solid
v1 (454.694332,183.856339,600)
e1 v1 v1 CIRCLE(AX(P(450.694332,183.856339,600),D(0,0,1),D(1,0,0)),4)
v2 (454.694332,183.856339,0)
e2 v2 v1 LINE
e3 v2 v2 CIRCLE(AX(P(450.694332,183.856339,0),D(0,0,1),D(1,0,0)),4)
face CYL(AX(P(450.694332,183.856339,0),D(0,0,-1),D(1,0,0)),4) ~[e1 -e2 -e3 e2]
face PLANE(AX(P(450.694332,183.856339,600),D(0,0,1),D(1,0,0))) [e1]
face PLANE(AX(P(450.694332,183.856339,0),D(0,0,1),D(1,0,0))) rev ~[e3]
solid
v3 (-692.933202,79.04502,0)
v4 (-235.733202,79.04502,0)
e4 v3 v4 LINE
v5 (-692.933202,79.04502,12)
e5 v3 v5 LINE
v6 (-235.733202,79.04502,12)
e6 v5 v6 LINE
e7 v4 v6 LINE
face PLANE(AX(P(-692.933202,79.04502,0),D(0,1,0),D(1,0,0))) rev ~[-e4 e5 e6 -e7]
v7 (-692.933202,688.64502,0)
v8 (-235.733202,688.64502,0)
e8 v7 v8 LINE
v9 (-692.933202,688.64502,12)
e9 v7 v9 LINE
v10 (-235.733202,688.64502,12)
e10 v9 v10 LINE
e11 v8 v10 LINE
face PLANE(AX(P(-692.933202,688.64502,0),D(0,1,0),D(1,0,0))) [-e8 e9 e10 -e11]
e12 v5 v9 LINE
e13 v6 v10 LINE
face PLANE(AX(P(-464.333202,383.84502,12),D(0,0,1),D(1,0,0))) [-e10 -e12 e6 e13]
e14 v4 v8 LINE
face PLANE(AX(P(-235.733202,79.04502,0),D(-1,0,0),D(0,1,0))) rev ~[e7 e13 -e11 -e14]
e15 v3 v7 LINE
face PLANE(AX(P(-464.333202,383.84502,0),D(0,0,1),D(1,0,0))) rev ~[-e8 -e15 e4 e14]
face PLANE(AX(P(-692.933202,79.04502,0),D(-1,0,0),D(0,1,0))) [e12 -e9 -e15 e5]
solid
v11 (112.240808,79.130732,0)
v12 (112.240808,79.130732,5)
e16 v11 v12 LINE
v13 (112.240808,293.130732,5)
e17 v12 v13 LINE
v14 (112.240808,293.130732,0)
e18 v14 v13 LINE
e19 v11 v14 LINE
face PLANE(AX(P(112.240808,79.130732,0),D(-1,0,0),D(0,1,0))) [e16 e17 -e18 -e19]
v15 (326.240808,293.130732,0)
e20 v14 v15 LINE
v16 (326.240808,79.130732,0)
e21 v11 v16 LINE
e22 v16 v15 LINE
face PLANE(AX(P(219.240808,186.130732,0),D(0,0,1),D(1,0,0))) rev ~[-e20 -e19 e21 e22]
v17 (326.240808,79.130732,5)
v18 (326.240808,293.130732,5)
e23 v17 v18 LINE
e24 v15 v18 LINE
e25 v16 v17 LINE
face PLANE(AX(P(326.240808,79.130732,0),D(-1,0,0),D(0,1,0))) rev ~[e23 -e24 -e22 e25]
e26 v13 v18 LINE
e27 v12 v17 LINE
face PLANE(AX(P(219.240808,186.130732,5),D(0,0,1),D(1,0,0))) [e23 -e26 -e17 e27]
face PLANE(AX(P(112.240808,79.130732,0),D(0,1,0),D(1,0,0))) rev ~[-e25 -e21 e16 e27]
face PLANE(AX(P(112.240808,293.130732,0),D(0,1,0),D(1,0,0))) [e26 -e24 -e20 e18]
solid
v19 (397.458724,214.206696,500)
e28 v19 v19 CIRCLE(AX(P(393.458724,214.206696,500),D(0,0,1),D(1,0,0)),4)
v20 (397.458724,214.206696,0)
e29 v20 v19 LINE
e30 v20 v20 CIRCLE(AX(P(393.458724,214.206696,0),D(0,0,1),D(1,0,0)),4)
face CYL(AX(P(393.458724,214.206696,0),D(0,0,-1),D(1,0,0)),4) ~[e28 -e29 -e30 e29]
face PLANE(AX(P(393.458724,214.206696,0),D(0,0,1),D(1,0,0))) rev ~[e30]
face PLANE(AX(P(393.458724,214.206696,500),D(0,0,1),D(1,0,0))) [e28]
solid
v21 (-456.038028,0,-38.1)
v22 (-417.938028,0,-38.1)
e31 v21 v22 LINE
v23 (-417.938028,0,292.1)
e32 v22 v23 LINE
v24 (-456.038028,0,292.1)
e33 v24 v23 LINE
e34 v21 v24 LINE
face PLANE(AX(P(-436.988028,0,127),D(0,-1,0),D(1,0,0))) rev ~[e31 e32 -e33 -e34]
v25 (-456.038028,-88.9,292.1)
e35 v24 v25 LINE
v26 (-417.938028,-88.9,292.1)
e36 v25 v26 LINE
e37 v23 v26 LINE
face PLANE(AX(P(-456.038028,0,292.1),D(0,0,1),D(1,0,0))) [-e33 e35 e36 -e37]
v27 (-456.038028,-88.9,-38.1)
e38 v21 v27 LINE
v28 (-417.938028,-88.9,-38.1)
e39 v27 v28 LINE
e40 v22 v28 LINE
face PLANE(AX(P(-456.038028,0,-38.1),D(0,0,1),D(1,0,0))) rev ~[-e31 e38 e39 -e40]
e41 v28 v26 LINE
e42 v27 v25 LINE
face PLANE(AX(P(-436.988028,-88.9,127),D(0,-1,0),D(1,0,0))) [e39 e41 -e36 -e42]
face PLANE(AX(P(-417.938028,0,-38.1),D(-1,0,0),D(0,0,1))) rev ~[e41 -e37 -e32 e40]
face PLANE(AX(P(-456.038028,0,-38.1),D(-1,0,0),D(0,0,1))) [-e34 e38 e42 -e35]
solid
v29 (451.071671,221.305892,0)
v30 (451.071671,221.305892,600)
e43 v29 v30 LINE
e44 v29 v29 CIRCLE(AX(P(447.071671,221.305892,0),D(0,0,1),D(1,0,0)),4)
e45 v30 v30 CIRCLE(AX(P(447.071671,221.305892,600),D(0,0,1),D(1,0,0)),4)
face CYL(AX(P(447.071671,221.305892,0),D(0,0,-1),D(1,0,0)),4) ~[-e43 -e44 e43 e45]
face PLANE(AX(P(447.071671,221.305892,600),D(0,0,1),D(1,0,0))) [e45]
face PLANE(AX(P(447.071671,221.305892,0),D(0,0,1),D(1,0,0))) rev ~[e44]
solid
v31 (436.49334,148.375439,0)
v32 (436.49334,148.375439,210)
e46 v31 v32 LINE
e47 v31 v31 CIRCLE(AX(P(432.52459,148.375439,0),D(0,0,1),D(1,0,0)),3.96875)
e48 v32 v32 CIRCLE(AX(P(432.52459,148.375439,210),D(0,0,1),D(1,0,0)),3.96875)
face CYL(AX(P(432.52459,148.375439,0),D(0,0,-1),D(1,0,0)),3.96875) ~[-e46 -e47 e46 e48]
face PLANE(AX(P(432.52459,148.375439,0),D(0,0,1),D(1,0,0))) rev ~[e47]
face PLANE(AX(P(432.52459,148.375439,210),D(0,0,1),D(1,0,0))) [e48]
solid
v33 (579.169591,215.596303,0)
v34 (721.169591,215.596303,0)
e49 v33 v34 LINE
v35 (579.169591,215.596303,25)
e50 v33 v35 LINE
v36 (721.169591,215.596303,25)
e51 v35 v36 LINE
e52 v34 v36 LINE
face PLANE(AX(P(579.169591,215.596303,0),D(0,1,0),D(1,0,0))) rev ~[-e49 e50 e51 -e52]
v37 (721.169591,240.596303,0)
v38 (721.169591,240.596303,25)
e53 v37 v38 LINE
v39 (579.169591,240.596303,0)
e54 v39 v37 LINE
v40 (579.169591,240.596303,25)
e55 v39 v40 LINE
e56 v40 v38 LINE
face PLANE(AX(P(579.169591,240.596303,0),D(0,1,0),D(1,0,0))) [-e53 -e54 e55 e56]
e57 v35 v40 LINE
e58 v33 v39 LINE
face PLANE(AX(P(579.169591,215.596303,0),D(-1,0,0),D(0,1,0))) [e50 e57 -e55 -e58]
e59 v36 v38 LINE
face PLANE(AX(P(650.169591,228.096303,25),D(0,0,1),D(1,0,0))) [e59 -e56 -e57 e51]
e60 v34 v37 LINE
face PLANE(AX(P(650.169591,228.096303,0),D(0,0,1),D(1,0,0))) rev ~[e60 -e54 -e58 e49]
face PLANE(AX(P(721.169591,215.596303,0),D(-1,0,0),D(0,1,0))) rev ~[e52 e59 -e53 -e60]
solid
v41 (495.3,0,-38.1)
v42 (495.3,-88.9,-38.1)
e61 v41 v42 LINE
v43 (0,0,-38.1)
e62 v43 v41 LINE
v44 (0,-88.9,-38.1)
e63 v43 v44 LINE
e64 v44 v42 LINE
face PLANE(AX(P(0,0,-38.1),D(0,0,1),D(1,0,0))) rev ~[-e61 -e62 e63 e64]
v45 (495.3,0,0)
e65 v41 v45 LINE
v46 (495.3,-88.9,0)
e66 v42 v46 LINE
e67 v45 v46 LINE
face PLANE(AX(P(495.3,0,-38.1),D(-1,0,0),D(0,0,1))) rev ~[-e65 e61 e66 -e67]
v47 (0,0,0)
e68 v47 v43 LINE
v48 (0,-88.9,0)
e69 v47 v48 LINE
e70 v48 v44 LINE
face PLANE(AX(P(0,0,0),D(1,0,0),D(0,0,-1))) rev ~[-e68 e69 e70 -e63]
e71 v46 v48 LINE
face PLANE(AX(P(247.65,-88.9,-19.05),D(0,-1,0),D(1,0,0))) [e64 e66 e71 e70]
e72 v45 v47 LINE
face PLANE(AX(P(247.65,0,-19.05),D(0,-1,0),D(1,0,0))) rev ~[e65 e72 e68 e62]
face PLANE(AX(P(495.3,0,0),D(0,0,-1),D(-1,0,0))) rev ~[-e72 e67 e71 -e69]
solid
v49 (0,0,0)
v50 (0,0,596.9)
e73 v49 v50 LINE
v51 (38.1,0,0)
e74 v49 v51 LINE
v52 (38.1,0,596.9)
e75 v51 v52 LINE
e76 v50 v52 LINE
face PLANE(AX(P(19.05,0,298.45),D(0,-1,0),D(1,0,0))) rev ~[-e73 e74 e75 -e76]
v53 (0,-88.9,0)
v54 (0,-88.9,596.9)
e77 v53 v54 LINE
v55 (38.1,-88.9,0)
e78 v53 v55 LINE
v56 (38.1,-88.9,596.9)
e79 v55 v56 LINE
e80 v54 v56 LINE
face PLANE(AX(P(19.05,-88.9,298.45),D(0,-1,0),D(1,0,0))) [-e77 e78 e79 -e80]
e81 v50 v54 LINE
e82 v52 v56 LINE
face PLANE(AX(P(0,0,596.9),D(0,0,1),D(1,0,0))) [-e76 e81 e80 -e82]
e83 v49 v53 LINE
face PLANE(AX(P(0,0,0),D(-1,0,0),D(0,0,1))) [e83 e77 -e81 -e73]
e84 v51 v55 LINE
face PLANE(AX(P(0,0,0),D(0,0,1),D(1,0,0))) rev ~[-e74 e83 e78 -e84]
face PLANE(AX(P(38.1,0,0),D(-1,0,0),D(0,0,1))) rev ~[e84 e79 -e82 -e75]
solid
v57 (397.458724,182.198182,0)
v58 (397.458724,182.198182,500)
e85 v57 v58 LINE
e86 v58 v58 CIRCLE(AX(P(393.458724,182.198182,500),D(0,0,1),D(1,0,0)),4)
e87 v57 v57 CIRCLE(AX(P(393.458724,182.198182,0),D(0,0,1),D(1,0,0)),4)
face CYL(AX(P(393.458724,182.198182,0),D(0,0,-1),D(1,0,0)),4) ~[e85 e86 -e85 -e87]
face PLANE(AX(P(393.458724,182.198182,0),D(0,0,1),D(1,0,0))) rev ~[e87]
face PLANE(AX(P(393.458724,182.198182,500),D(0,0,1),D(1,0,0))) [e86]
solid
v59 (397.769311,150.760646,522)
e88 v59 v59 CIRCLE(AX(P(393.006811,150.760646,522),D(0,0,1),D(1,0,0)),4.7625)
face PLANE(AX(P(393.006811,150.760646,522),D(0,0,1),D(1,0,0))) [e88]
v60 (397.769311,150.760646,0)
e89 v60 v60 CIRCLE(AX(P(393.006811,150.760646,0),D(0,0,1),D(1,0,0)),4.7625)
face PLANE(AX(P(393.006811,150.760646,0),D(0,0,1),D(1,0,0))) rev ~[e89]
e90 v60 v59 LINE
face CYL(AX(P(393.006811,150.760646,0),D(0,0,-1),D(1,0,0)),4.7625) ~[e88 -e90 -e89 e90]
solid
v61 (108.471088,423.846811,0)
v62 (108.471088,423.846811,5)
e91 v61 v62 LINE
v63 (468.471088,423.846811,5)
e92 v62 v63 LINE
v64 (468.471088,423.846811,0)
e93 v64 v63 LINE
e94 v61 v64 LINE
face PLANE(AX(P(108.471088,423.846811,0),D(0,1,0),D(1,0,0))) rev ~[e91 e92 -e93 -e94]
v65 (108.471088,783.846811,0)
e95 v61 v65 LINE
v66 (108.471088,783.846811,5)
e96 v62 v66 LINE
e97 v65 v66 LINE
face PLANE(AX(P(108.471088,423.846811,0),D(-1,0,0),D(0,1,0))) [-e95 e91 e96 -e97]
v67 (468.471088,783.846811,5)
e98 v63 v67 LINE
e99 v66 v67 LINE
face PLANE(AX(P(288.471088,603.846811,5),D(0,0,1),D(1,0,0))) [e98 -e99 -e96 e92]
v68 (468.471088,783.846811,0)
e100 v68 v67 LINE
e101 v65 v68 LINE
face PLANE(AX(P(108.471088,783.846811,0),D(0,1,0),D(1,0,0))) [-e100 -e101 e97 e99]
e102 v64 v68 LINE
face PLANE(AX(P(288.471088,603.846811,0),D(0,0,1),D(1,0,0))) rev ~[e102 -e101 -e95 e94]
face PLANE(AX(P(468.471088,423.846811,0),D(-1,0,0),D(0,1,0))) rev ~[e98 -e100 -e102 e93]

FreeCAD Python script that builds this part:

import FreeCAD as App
import Part
import Sketcher
Q = App.Units.Quantity

doc = App.newDocument("Part")
body = doc.addObject("PartDesign::Body", "Body")

sketch1 = body.newObject("Sketcher::SketchObject", "Sketch")
sketch1.AttachmentSupport = (doc.getObject("XZ_Plane"), [""])
sketch1.MapMode = "FlatFace"
sketch1.addGeometry(Part.LineSegment(App.Vector(0, 597, 0), App.Vector(0, 0, 0)), False)
sketch1.addGeometry(Part.LineSegment(App.Vector(0, 0, 0), App.Vector(38, 0, 0)), False)
sketch1.addGeometry(Part.LineSegment(App.Vector(38, 0, 0), App.Vector(38, 597, 0)), False)
sketch1.addGeometry(Part.LineSegment(App.Vector(38, 597, 0), App.Vector(0, 597, 0)), False)
sketch1.addConstraint(Sketcher.Constraint("Coincident", 0, 2, 1, 1))
sketch1.addConstraint(Sketcher.Constraint("Coincident", 1, 2, 2, 1))
sketch1.addConstraint(Sketcher.Constraint("Coincident", 2, 2, 3, 1))
sketch1.addConstraint(Sketcher.Constraint("Coincident", 3, 2, 0, 1))
sketch1.addConstraint(Sketcher.Constraint("Vertical", 0))
sketch1.addConstraint(Sketcher.Constraint("Horizontal", 1))
sketch1.addConstraint(Sketcher.Constraint("Vertical", 2))
sketch1.addConstraint(Sketcher.Constraint("Horizontal", 3))
sketch1.addConstraint(Sketcher.Constraint("Coincident", 0, 2, -1, 1))
sketch1.addConstraint(Sketcher.Constraint("DistanceX", 1, 1, 1, 2, Q("38.1 mm")))
sketch1.addConstraint(Sketcher.Constraint("DistanceY", 0, 2, 0, 1, Q("596.9 mm")))
pad1 = body.newObject("PartDesign::Pad", "Pad")
pad1.Profile = sketch1
pad1.Length = 88.9
body2 = doc.addObject("PartDesign::Body", "Body001")

sketch2 = body2.newObject("Sketcher::SketchObject", "Sketch001")
sketch2.AttachmentSupport = (doc.getObject("XZ_Plane001"), [""])
sketch2.MapMode = "FlatFace"
sketch2.addGeometry(Part.LineSegment(App.Vector(0, 0, 0), App.Vector(0, -38, 0)), False)
sketch2.addGeometry(Part.LineSegment(App.Vector(0, -38, 0), App.Vector(495, -38, 0)), False)
sketch2.addGeometry(Part.LineSegment(App.Vector(495, -38, 0), App.Vector(495, 0, 0)), False)
sketch2.addGeometry(Part.LineSegment(App.Vector(495, 0, 0), App.Vector(0, 0, 0)), False)
sketch2.addConstraint(Sketcher.Constraint("Coincident", 0, 2, 1, 1))
sketch2.addConstraint(Sketcher.Constraint("Coincident", 1, 2, 2, 1))
sketch2.addConstraint(Sketcher.Constraint("Coincident", 2, 2, 3, 1))
sketch2.addConstraint(Sketcher.Constraint("Coincident", 3, 2, 0, 1))
sketch2.addConstraint(Sketcher.Constraint("Vertical", 0))
sketch2.addConstraint(Sketcher.Constraint("Horizontal", 1))
sketch2.addConstraint(Sketcher.Constraint("Vertical", 2))
sketch2.addConstraint(Sketcher.Constraint("Horizontal", 3))
sketch2.addConstraint(Sketcher.Constraint("Coincident", 3, 2, -1, 1))
sketch2.addConstraint(Sketcher.Constraint("DistanceX", 1, 1, 1, 2, Q("495.3 mm")))
sketch2.addConstraint(Sketcher.Constraint("DistanceY", 0, 2, 0, 1, Q("38.1 mm")))
pad2 = body2.newObject("PartDesign::Pad", "Pad001")
pad2.Profile = sketch2
pad2.Length = 88.9
body3 = doc.addObject("PartDesign::Body", "Body002")

sketch3 = body3.newObject("Sketcher::SketchObject", "Sketch002")
sketch3.AttachmentSupport = (doc.getObject("XY_Plane002"), [""])
sketch3.MapMode = "FlatFace"
sketch3.addGeometry(Part.LineSegment(App.Vector(112, 293, 0), App.Vector(112, 79, 0)), False)
sketch3.addGeometry(Part.LineSegment(App.Vector(112, 79, 0), App.Vector(326, 79, 0)), False)
sketch3.addGeometry(Part.LineSegment(App.Vector(326, 79, 0), App.Vector(326, 293, 0)), False)
sketch3.addGeometry(Part.LineSegment(App.Vector(326, 293, 0), App.Vector(112, 293, 0)), False)
sketch3.addConstraint(Sketcher.Constraint("Coincident", 0, 2, 1, 1))
sketch3.addConstraint(Sketcher.Constraint("Coincident", 1, 2, 2, 1))
sketch3.addConstraint(Sketcher.Constraint("Coincident", 2, 2, 3, 1))
sketch3.addConstraint(Sketcher.Constraint("Coincident", 3, 2, 0, 1))
sketch3.addConstraint(Sketcher.Constraint("Vertical", 0))
sketch3.addConstraint(Sketcher.Constraint("Horizontal", 1))
sketch3.addConstraint(Sketcher.Constraint("Vertical", 2))
sketch3.addConstraint(Sketcher.Constraint("Horizontal", 3))
sketch3.addConstraint(Sketcher.Constraint("Equal", 3, 0))
sketch3.addConstraint(Sketcher.Constraint("DistanceX", 1, 1, 1, 2, Q("214 mm")))
sketch3.addConstraint(Sketcher.Constraint("DistanceX", -1, 1, 0, 2, Q("112.240808 mm")))
sketch3.addConstraint(Sketcher.Constraint("DistanceY", -1, 1, 0, 2, Q("79.130732 mm")))
pad3 = body3.newObject("PartDesign::Pad", "Pad002")
pad3.Profile = sketch3
pad3.Length = 5
body4 = doc.addObject("PartDesign::Body", "Body003")

sketch4 = body4.newObject("Sketcher::SketchObject", "Sketch003")
sketch4.AttachmentSupport = (doc.getObject("XY_Plane003"), [""])
sketch4.MapMode = "FlatFace"
sketch4.addGeometry(Part.Circle(App.Vector(393.5, 214.2, 0), App.Vector(0, 0, 1), 4), False)
sketch4.addConstraint(Sketcher.Constraint("Diameter", 0, Q("8 mm")))
sketch4.addConstraint(Sketcher.Constraint("DistanceX", -1, 1, 0, 3, Q("393.458724 mm")))
sketch4.addConstraint(Sketcher.Constraint("DistanceY", -1, 1, 0, 3, Q("214.206696 mm")))
pad4 = body4.newObject("PartDesign::Pad", "Pad003")
pad4.Profile = sketch4
pad4.Length = 500
body5 = doc.addObject("PartDesign::Body", "Body004")

sketch5 = body5.newObject("Sketcher::SketchObject", "Sketch004")
sketch5.AttachmentSupport = (doc.getObject("XY_Plane004"), [""])
sketch5.MapMode = "FlatFace"
sketch5.addGeometry(Part.Circle(App.Vector(393.5, 182.2, 0), App.Vector(0, 0, 1), 4), False)
sketch5.addConstraint(Sketcher.Constraint("Diameter", 0, Q("8 mm")))
sketch5.addConstraint(Sketcher.Constraint("DistanceY", -1, 1, 0, 3, Q("182.198182 mm")))
sketch5.addConstraint(Sketcher.Constraint("DistanceX", -1, 1, 0, 3, Q("393.458724 mm")))
pad5 = body5.newObject("PartDesign::Pad", "Pad004")
pad5.Profile = sketch5
pad5.Length = 500
body6 = doc.addObject("PartDesign::Body", "Body005")

sketch6 = body6.newObject("Sketcher::SketchObject", "Sketch005")
sketch6.AttachmentSupport = (doc.getObject("XY_Plane005"), [""])
sketch6.MapMode = "FlatFace"
sketch6.addGeometry(Part.LineSegment(App.Vector(108, 784, 0), App.Vector(108, 424, 0)), False)
sketch6.addGeometry(Part.LineSegment(App.Vector(108, 424, 0), App.Vector(468, 424, 0)), False)
sketch6.addGeometry(Part.LineSegment(App.Vector(468, 424, 0), App.Vector(468, 784, 0)), False)
sketch6.addGeometry(Part.LineSegment(App.Vector(468, 784, 0), App.Vector(108, 784, 0)), False)
sketch6.addConstraint(Sketcher.Constraint("Coincident", 0, 2, 1, 1))
sketch6.addConstraint(Sketcher.Constraint("Coincident", 1, 2, 2, 1))
sketch6.addConstraint(Sketcher.Constraint("Coincident", 2, 2, 3, 1))
sketch6.addConstraint(Sketcher.Constraint("Coincident", 3, 2, 0, 1))
sketch6.addConstraint(Sketcher.Constraint("Vertical", 0))
sketch6.addConstraint(Sketcher.Constraint("Horizontal", 1))
sketch6.addConstraint(Sketcher.Constraint("Vertical", 2))
sketch6.addConstraint(Sketcher.Constraint("Horizontal", 3))
sketch6.addConstraint(Sketcher.Constraint("Equal", 3, 0))
sketch6.addConstraint(Sketcher.Constraint("DistanceX", 1, 1, 1, 2, Q("360 mm")))
sketch6.addConstraint(Sketcher.Constraint("DistanceY", -1, 1, 0, 2, Q("423.846811 mm")))
sketch6.addConstraint(Sketcher.Constraint("DistanceX", -1, 1, 1, 2, Q("468.471088 mm")))
pad6 = body6.newObject("PartDesign::Pad", "Pad005")
pad6.Profile = sketch6
pad6.Length = 5
body7 = doc.addObject("PartDesign::Body", "Body006")

sketch7 = body7.newObject("Sketcher::SketchObject", "Sketch006")
sketch7.AttachmentSupport = (doc.getObject("XY_Plane006"), [""])
sketch7.MapMode = "FlatFace"
sketch7.addGeometry(Part.Circle(App.Vector(393, 150.8, 0), App.Vector(0, 0, 1), 4.8), False)
sketch7.addConstraint(Sketcher.Constraint("Diameter", 0, Q("9.525 mm")))
sketch7.addConstraint(Sketcher.Constraint("DistanceX", -1, 1, 0, 3, Q("393.006811 mm")))
sketch7.addConstraint(Sketcher.Constraint("DistanceY", -1, 1, 0, 3, Q("150.760646 mm")))
pad7 = body7.newObject("PartDesign::Pad", "Pad006")
pad7.Profile = sketch7
pad7.Length = 522
body8 = doc.addObject("PartDesign::Body", "Body007")

sketch8 = body8.newObject("Sketcher::SketchObject", "Sketch007")
sketch8.AttachmentSupport = (doc.getObject("XY_Plane007"), [""])
sketch8.MapMode = "FlatFace"
sketch8.addGeometry(Part.Circle(App.Vector(450.7, 183.9, 0), App.Vector(0, 0, 1), 4), False)
sketch8.addConstraint(Sketcher.Constraint("Diameter", 0, Q("8 mm")))
sketch8.addConstraint(Sketcher.Constraint("DistanceX", -1, 1, 0, 3, Q("450.694332 mm")))
sketch8.addConstraint(Sketcher.Constraint("DistanceY", -1, 1, 0, 3, Q("183.856339 mm")))
pad8 = body8.newObject("PartDesign::Pad", "Pad007")
pad8.Profile = sketch8
pad8.Length = 600
body9 = doc.addObject("PartDesign::Body", "Body008")

sketch9 = body9.newObject("Sketcher::SketchObject", "Sketch008")
sketch9.AttachmentSupport = (doc.getObject("XY_Plane008"), [""])
sketch9.MapMode = "FlatFace"
sketch9.addGeometry(Part.Circle(App.Vector(432.5, 148.4, 0), App.Vector(0, 0, 1), 4), False)
sketch9.addConstraint(Sketcher.Constraint("Diameter", 0, Q("7.9375 mm")))
sketch9.addConstraint(Sketcher.Constraint("DistanceX", -1, 1, 0, 3, Q("432.52459 mm")))
sketch9.addConstraint(Sketcher.Constraint("DistanceY", -1, 1, 0, 3, Q("148.375439 mm")))
pad9 = body9.newObject("PartDesign::Pad", "Pad008")
pad9.Profile = sketch9
pad9.Length = 210
body10 = doc.addObject("PartDesign::Body", "Body009")

sketch10 = body10.newObject("Sketcher::SketchObject", "Sketch009")
sketch10.AttachmentSupport = (doc.getObject("XY_Plane009"), [""])
sketch10.MapMode = "FlatFace"
sketch10.addGeometry(Part.Circle(App.Vector(447.1, 221.3, 0), App.Vector(0, 0, 1), 4), False)
sketch10.addConstraint(Sketcher.Constraint("Diameter", 0, Q("8 mm")))
sketch10.addConstraint(Sketcher.Constraint("DistanceX", -1, 1, 0, 3, Q("447.071671 mm")))
sketch10.addConstraint(Sketcher.Constraint("DistanceY", -1, 1, 0, 3, Q("221.305892 mm")))
pad10 = body10.newObject("PartDesign::Pad", "Pad009")
pad10.Profile = sketch10
pad10.Length = 600
body11 = doc.addObject("PartDesign::Body", "Body010")

sketch11 = body11.newObject("Sketcher::SketchObject", "Sketch010")
sketch11.AttachmentSupport = (doc.getObject("XY_Plane010"), [""])
sketch11.MapMode = "FlatFace"
sketch11.addGeometry(Part.LineSegment(App.Vector(-693, 689, 0), App.Vector(-693, 79, 0)), False)
sketch11.addGeometry(Part.LineSegment(App.Vector(-693, 79, 0), App.Vector(-236, 79, 0)), False)
sketch11.addGeometry(Part.LineSegment(App.Vector(-236, 79, 0), App.Vector(-236, 689, 0)), False)
sketch11.addGeometry(Part.LineSegment(App.Vector(-236, 689, 0), App.Vector(-693, 689, 0)), False)
sketch11.addConstraint(Sketcher.Constraint("Coincident", 0, 2, 1, 1))
sketch11.addConstraint(Sketcher.Constraint("Coincident", 1, 2, 2, 1))
sketch11.addConstraint(Sketcher.Constraint("Coincident", 2, 2, 3, 1))
sketch11.addConstraint(Sketcher.Constraint("Coincident", 3, 2, 0, 1))
sketch11.addConstraint(Sketcher.Constraint("Vertical", 0))
sketch11.addConstraint(Sketcher.Constraint("Horizontal", 1))
sketch11.addConstraint(Sketcher.Constraint("Vertical", 2))
sketch11.addConstraint(Sketcher.Constraint("Horizontal", 3))
sketch11.addConstraint(Sketcher.Constraint("DistanceX", 1, 1, 1, 2, Q("457.2 mm")))
sketch11.addConstraint(Sketcher.Constraint("DistanceY", 0, 2, 0, 1, Q("609.6 mm")))
sketch11.addConstraint(Sketcher.Constraint("DistanceX", 0, 2, -1, 1, Q("692.933202 mm")))
sketch11.addConstraint(Sketcher.Constraint("DistanceY", -1, 1, 0, 2, Q("79.04502 mm")))
pad11 = body11.newObject("PartDesign::Pad", "Pad010")
pad11.Profile = sketch11
pad11.Length = 12
body12 = doc.addObject("PartDesign::Body", "Body011")

sketch12 = body12.newObject("Sketcher::SketchObject", "Sketch011")
sketch12.AttachmentSupport = (doc.getObject("XY_Plane011"), [""])
sketch12.MapMode = "FlatFace"
sketch12.addGeometry(Part.LineSegment(App.Vector(579, 241, 0), App.Vector(579, 216, 0)), False)
sketch12.addGeometry(Part.LineSegment(App.Vector(579, 216, 0), App.Vector(721, 216, 0)), False)
sketch12.addGeometry(Part.LineSegment(App.Vector(721, 216, 0), App.Vector(721, 241, 0)), False)
sketch12.addGeometry(Part.LineSegment(App.Vector(721, 241, 0), App.Vector(579, 241, 0)), False)
sketch12.addConstraint(Sketcher.Constraint("Coincident", 0, 2, 1, 1))
sketch12.addConstraint(Sketcher.Constraint("Coincident", 1, 2, 2, 1))
sketch12.addConstraint(Sketcher.Constraint("Coincident", 2, 2, 3, 1))
sketch12.addConstraint(Sketcher.Constraint("Coincident", 3, 2, 0, 1))
sketch12.addConstraint(Sketcher.Constraint("Vertical", 0))
sketch12.addConstraint(Sketcher.Constraint("Horizontal", 1))
sketch12.addConstraint(Sketcher.Constraint("Vertical", 2))
sketch12.addConstraint(Sketcher.Constraint("Horizontal", 3))
sketch12.addConstraint(Sketcher.Constraint("DistanceX", 1, 1, 1, 2, Q("142 mm")))
sketch12.addConstraint(Sketcher.Constraint("DistanceY", 0, 2, 0, 1, Q("25 mm")))
sketch12.addConstraint(Sketcher.Constraint("DistanceX", -1, 1, 0, 2, Q("579.169591 mm")))
sketch12.addConstraint(Sketcher.Constraint("DistanceY", -1, 1, 0, 2, Q("215.596303 mm")))
pad12 = body12.newObject("PartDesign::Pad", "Pad011")
pad12.Profile = sketch12
pad12.Length = 25
body13 = doc.addObject("PartDesign::Body", "Body012")

sketch13 = body13.newObject("Sketcher::SketchObject", "Sketch012")
sketch13.AttachmentSupport = (doc.getObject("XZ_Plane012"), [""])
sketch13.MapMode = "FlatFace"
sketch13.addGeometry(Part.LineSegment(App.Vector(-456, 292, 0), App.Vector(-456, -38, 0)), False)
sketch13.addGeometry(Part.LineSegment(App.Vector(-456, -38, 0), App.Vector(-418, -38, 0)), False)
sketch13.addGeometry(Part.LineSegment(App.Vector(-418, -38, 0), App.Vector(-418, 292, 0)), False)
sketch13.addGeometry(Part.LineSegment(App.Vector(-418, 292, 0), App.Vector(-456, 292, 0)), False)
sketch13.addConstraint(Sketcher.Constraint("Coincident", 0, 2, 1, 1))
sketch13.addConstraint(Sketcher.Constraint("Coincident", 1, 2, 2, 1))
sketch13.addConstraint(Sketcher.Constraint("Coincident", 2, 2, 3, 1))
sketch13.addConstraint(Sketcher.Constraint("Coincident", 3, 2, 0, 1))
sketch13.addConstraint(Sketcher.Constraint("Vertical", 0))
sketch13.addConstraint(Sketcher.Constraint("Horizontal", 1))
sketch13.addConstraint(Sketcher.Constraint("Vertical", 2))
sketch13.addConstraint(Sketcher.Constraint("Horizontal", 3))
sketch13.addConstraint(Sketcher.Constraint("DistanceX", 1, 1, 1, 2, Q("38.1 mm")))
sketch13.addConstraint(Sketcher.Constraint("DistanceY", 0, 2, 0, 1, Q("330.2 mm")))
sketch13.addConstraint(Sketcher.Constraint("DistanceY", 0, 2, -1, 1, Q("38.1 mm")))
sketch13.addConstraint(Sketcher.Constraint("DistanceX", 0, 2, -1, 1, Q("456.038028 mm")))
pad13 = body13.newObject("PartDesign::Pad", "Pad012")
pad13.Profile = sketch13
pad13.Length = 88.9

doc.recompute()
